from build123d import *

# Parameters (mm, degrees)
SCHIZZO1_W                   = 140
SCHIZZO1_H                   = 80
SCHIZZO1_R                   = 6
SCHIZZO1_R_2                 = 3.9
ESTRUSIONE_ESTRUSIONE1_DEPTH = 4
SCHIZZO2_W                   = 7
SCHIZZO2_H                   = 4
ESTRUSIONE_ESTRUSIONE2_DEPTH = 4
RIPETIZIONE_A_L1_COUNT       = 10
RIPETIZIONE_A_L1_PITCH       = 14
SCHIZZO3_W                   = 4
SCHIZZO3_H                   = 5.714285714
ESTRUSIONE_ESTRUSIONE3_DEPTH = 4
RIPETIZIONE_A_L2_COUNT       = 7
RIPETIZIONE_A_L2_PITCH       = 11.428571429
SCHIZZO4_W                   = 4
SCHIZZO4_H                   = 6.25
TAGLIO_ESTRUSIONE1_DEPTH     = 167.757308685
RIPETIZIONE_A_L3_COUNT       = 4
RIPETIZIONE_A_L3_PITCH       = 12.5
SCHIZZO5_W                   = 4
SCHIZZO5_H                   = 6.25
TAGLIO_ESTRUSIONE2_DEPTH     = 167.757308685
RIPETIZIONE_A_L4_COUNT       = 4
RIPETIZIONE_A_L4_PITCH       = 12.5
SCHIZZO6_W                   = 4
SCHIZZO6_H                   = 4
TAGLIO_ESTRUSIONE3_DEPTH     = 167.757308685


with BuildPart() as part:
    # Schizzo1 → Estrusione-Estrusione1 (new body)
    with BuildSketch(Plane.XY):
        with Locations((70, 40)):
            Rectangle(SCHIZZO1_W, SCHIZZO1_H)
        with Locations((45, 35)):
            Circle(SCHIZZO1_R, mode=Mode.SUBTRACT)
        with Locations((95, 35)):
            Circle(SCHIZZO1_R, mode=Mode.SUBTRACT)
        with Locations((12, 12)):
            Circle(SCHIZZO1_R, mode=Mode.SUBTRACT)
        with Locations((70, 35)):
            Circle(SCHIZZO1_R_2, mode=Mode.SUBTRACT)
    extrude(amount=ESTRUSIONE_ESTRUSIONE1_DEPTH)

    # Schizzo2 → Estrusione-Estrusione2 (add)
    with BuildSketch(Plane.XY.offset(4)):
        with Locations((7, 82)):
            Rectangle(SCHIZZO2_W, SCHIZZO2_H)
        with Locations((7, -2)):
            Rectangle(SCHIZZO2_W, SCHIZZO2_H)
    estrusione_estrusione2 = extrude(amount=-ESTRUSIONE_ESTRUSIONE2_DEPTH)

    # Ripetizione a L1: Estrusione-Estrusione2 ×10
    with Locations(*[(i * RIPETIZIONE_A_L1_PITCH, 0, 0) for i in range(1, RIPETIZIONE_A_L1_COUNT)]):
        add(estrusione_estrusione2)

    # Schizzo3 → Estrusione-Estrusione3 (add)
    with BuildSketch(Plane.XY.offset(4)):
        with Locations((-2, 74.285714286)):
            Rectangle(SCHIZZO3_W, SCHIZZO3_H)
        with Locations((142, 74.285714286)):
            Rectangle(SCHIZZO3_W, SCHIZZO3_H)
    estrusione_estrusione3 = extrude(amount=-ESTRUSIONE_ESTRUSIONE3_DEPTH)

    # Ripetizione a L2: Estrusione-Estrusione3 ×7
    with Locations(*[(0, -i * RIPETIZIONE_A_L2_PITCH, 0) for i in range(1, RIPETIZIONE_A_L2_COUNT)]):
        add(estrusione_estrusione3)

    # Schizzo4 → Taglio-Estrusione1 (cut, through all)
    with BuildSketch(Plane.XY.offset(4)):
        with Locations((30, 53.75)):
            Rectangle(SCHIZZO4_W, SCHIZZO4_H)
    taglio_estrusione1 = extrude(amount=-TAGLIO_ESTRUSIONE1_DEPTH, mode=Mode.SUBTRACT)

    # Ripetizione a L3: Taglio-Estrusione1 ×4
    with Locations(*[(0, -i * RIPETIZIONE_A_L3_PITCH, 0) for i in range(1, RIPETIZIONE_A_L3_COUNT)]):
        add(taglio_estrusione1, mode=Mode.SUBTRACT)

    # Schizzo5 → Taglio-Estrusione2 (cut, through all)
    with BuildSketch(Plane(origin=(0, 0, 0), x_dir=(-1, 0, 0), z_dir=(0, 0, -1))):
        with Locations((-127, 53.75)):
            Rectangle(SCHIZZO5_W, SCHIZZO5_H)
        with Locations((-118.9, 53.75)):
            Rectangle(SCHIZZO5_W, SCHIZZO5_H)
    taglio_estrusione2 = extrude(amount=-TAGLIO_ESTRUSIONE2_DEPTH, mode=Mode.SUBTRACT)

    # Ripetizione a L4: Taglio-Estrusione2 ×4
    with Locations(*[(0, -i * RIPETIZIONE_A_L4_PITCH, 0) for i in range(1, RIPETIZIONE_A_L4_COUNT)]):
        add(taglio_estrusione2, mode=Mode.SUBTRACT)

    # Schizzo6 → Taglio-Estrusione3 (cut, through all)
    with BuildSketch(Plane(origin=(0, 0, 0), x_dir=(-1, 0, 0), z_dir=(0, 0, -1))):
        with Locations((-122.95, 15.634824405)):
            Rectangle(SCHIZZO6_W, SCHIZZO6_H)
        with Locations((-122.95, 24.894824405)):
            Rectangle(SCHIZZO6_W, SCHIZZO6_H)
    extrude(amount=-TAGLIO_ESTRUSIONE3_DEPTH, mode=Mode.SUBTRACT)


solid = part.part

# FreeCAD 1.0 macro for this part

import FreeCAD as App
import Part
import Sketcher

V = App.Vector

doc = App.newDocument("Part")
body = doc.addObject("PartDesign::Body", "Body")

# Sketch on XY plane
sketch1 = doc.addObject("Sketcher::SketchObject", "Sketch")
body.addObject(sketch1)
sketch1.AttachmentSupport = (doc.XY_Plane, [""])
sketch1.MapMode = "FlatFace"
sketch1.addGeometry([
    Part.LineSegment(V(0, 80, 0), V(0, 0, 0)),  # 0
    Part.LineSegment(V(0, 0, 0), V(140, 0, 0)),  # 1
    Part.LineSegment(V(140, 0, 0), V(140, 80, 0)),  # 2
    Part.LineSegment(V(140, 80, 0), V(0, 80, 0)),  # 3
    Part.Circle(V(12, 12, 0), V(0, 0, 1), 6),  # 4
    Part.Circle(V(45, 35, 0), V(0, 0, 1), 6),  # 5
    Part.Circle(V(70, 35, 0), V(0, 0, 1), 3.9),  # 6
    Part.Circle(V(95, 35, 0), V(0, 0, 1), 6),  # 7
], False)
sketch1.addConstraint([
    Sketcher.Constraint("Coincident", 0, 2, 1, 1),
    Sketcher.Constraint("Coincident", 1, 2, 2, 1),
    Sketcher.Constraint("Coincident", 2, 2, 3, 1),
    Sketcher.Constraint("Coincident", 3, 2, 0, 1),
    Sketcher.Constraint("Vertical", 0),
    Sketcher.Constraint("Horizontal", 1),
    Sketcher.Constraint("Vertical", 2),
    Sketcher.Constraint("Horizontal", 3),
    Sketcher.Constraint("Coincident", 0, 2, -1, 1),
    Sketcher.Constraint("Equal", 4, 5),
    Sketcher.Constraint("Equal", 5, 7),
    Sketcher.Constraint("Horizontal", 5, 3, 6, 3),
    Sketcher.Constraint("Horizontal", 6, 3, 7, 3),
    Sketcher.Constraint("Diameter", 4, 12.0),
    Sketcher.Constraint("Diameter", 6, 7.8),
    Sketcher.Constraint("DistanceX", 1, 1, 1, 2, 140.0),
    Sketcher.Constraint("DistanceY", 0, 2, 0, 1, 80.0),
    Sketcher.Constraint("DistanceX", -1, 1, 4, 3, 12.0),
    Sketcher.Constraint("DistanceY", -1, 1, 4, 3, 12.0),
    Sketcher.Constraint("DistanceX", -1, 1, 5, 3, 45.0),
    Sketcher.Constraint("DistanceY", -1, 1, 5, 3, 35.0),
    Sketcher.Constraint("DistanceX", -1, 1, 6, 3, 70.0),
    Sketcher.Constraint("DistanceX", -1, 1, 7, 3, 95.0),
])
pad1 = doc.addObject("PartDesign::Pad", "Pad")
body.addObject(pad1)
pad1.Profile = sketch1
pad1.Length = 4

# Sketch on XY plane
sketch2 = doc.addObject("Sketcher::SketchObject", "Sketch001")
body.addObject(sketch2)
sketch2.AttachmentSupport = (doc.XY_Plane, [""])
sketch2.MapMode = "FlatFace"
sketch2.AttachmentOffset = App.Placement(V(0, 0, 4), App.Rotation())
sketch2.addGeometry([
    Part.LineSegment(V(3.5, 84, 0), V(3.5, 80, 0)),  # 0
    Part.LineSegment(V(3.5, 80, 0), V(10.5, 80, 0)),  # 1
    Part.LineSegment(V(10.5, 80, 0), V(10.5, 84, 0)),  # 2
    Part.LineSegment(V(10.5, 84, 0), V(3.5, 84, 0)),  # 3
    Part.LineSegment(V(3.5, 0, 0), V(3.5, -4, 0)),  # 4
    Part.LineSegment(V(3.5, -4, 0), V(10.5, -4, 0)),  # 5
    Part.LineSegment(V(10.5, -4, 0), V(10.5, 0, 0)),  # 6
    Part.LineSegment(V(10.5, 0, 0), V(3.5, 0, 0)),  # 7
], False)
sketch2.addConstraint([
    Sketcher.Constraint("Coincident", 0, 2, 1, 1),
    Sketcher.Constraint("Coincident", 1, 2, 2, 1),
    Sketcher.Constraint("Coincident", 2, 2, 3, 1),
    Sketcher.Constraint("Coincident", 3, 2, 0, 1),
    Sketcher.Constraint("Coincident", 4, 2, 5, 1),
    Sketcher.Constraint("Coincident", 5, 2, 6, 1),
    Sketcher.Constraint("Coincident", 6, 2, 7, 1),
    Sketcher.Constraint("Coincident", 7, 2, 4, 1),
    Sketcher.Constraint("Vertical", 0),
    Sketcher.Constraint("Horizontal", 1),
    Sketcher.Constraint("Vertical", 2),
    Sketcher.Constraint("Horizontal", 3),
    Sketcher.Constraint("Vertical", 4),
    Sketcher.Constraint("Horizontal", 5),
    Sketcher.Constraint("Vertical", 6),
    Sketcher.Constraint("Horizontal", 7),
    Sketcher.Constraint("PointOnObject", 6, 2, -1),
    Sketcher.Constraint("Vertical", 3, 2, 4, 2),
    Sketcher.Constraint("Vertical", 2, 2, 5, 2),
    Sketcher.Constraint("Equal", 2, 4),
    Sketcher.Constraint("DistanceX", 1, 1, 1, 2, 7.0),
    Sketcher.Constraint("DistanceY", 0, 2, 0, 1, 4.0),
    Sketcher.Constraint("DistanceY", -1, 1, 0, 2, 80.0),
    Sketcher.Constraint("DistanceX", -1, 1, 0, 2, 3.5),
])
pad2 = doc.addObject("PartDesign::Pad", "Pad001")
body.addObject(pad2)
pad2.Profile = sketch2
pad2.Length = 4
pad2.Reversed = True
doc.recompute()

linearpattern = doc.addObject("PartDesign::LinearPattern", "LinearPattern")
body.addObject(linearpattern)
linearpattern.Originals = [pad2]
linearpattern.Direction = (doc.X_Axis, [""])
linearpattern.Mode = "offset"
linearpattern.Offset = 14
linearpattern.Occurrences = 10
body.Tip = linearpattern

# Sketch on XY plane
sketch3 = doc.addObject("Sketcher::SketchObject", "Sketch002")
body.addObject(sketch3)
sketch3.AttachmentSupport = (doc.XY_Plane, [""])
sketch3.MapMode = "FlatFace"
sketch3.AttachmentOffset = App.Placement(V(0, 0, 4), App.Rotation())
sketch3.addGeometry([
    Part.LineSegment(V(-4, 77.1, 0), V(-4, 71.4, 0)),  # 0
    Part.LineSegment(V(-4, 71.4, 0), V(0, 71.4, 0)),  # 1
    Part.LineSegment(V(0, 71.4, 0), V(0, 77.1, 0)),  # 2
    Part.LineSegment(V(0, 77.1, 0), V(-4, 77.1, 0)),  # 3
    Part.LineSegment(V(140, 77.1, 0), V(140, 71.4, 0)),  # 4
    Part.LineSegment(V(140, 71.4, 0), V(144, 71.4, 0)),  # 5
    Part.LineSegment(V(144, 71.4, 0), V(144, 77.1, 0)),  # 6
    Part.LineSegment(V(144, 77.1, 0), V(140, 77.1, 0)),  # 7
], False)
sketch3.addConstraint([
    Sketcher.Constraint("Coincident", 0, 2, 1, 1),
    Sketcher.Constraint("Coincident", 1, 2, 2, 1),
    Sketcher.Constraint("Coincident", 2, 2, 3, 1),
    Sketcher.Constraint("Coincident", 3, 2, 0, 1),
    Sketcher.Constraint("Coincident", 4, 2, 5, 1),
    Sketcher.Constraint("Coincident", 5, 2, 6, 1),
    Sketcher.Constraint("Coincident", 6, 2, 7, 1),
    Sketcher.Constraint("Coincident", 7, 2, 4, 1),
    Sketcher.Constraint("Vertical", 0),
    Sketcher.Constraint("Horizontal", 1),
    Sketcher.Constraint("Vertical", 2),
    Sketcher.Constraint("Horizontal", 3),
    Sketcher.Constraint("Vertical", 4),
    Sketcher.Constraint("Horizontal", 5),
    Sketcher.Constraint("Vertical", 6),
    Sketcher.Constraint("Horizontal", 7),
    Sketcher.Constraint("PointOnObject", 1, 2, -2),
    Sketcher.Constraint("Horizontal", 1, 2, 4, 2),
    Sketcher.Constraint("Horizontal", 3, 2, 6, 2),
    Sketcher.Constraint("Equal", 3, 5),
    Sketcher.Constraint("DistanceX", 1, 1, 1, 2, 4.0),
    Sketcher.Constraint("DistanceX", -1, 1, 4, 2, 140.0),
    Sketcher.Constraint("DistanceY", 0, 2, 0, 1, 5.714286),
    Sketcher.Constraint("DistanceY", -1, 1, 0, 2, 71.428571),
])
pad3 = doc.addObject("PartDesign::Pad", "Pad002")
body.addObject(pad3)
pad3.Profile = sketch3
pad3.Length = 4
pad3.Reversed = True
doc.recompute()

linearpattern2 = doc.addObject("PartDesign::LinearPattern", "LinearPattern001")
body.addObject(linearpattern2)
linearpattern2.Originals = [pad3]
linearpattern2.Direction = (doc.Y_Axis, [""])
linearpattern2.Mode = "offset"
linearpattern2.Offset = 11.428571
linearpattern2.Occurrences = 7
linearpattern2.Reversed = True
body.Tip = linearpattern2

# Sketch on XY plane
sketch4 = doc.addObject("Sketcher::SketchObject", "Sketch003")
body.addObject(sketch4)
sketch4.AttachmentSupport = (doc.XY_Plane, [""])
sketch4.MapMode = "FlatFace"
sketch4.AttachmentOffset = App.Placement(V(0, 0, 4), App.Rotation())
sketch4.addGeometry([
    Part.LineSegment(V(28, 56.9, 0), V(28, 50.6, 0)),
    Part.LineSegment(V(28, 50.6, 0), V(32, 50.6, 0)),
    Part.LineSegment(V(32, 50.6, 0), V(32, 56.9, 0)),
    Part.LineSegment(V(32, 56.9, 0), V(28, 56.9, 0)),
], False)
sketch4.addConstraint([
    Sketcher.Constraint("Coincident", 0, 2, 1, 1),
    Sketcher.Constraint("Coincident", 1, 2, 2, 1),
    Sketcher.Constraint("Coincident", 2, 2, 3, 1),
    Sketcher.Constraint("Coincident", 3, 2, 0, 1),
    Sketcher.Constraint("Vertical", 0),
    Sketcher.Constraint("Horizontal", 1),
    Sketcher.Constraint("Vertical", 2),
    Sketcher.Constraint("Horizontal", 3),
    Sketcher.Constraint("DistanceX", 1, 1, 1, 2, 4.0),
    Sketcher.Constraint("DistanceX", -1, 1, 0, 2, 28.0),
    Sketcher.Constraint("DistanceY", 0, 2, 0, 1, 6.25),
    Sketcher.Constraint("DistanceY", -1, 1, 0, 2, 50.625),
])
pocket1 = doc.addObject("PartDesign::Pocket", "Pocket")
body.addObject(pocket1)
pocket1.Profile = sketch4
pocket1.Type = "ThroughAll"
doc.recompute()

linearpattern3 = doc.addObject("PartDesign::LinearPattern", "LinearPattern002")
body.addObject(linearpattern3)
linearpattern3.Originals = [pocket1]
linearpattern3.Direction = (doc.Y_Axis, [""])
linearpattern3.Mode = "offset"
linearpattern3.Offset = 12.5
linearpattern3.Occurrences = 4
linearpattern3.Reversed = True
body.Tip = linearpattern3

# Sketch on XY plane
sketch5 = doc.addObject("Sketcher::SketchObject", "Sketch004")
body.addObject(sketch5)
sketch5.AttachmentSupport = (doc.XY_Plane, [""])
sketch5.MapMode = "FlatFace"
sketch5.addGeometry([
    Part.LineSegment(V(129, 56.9, 0), V(129, 50.6, 0)),  # 0
    Part.LineSegment(V(129, 50.6, 0), V(125, 50.6, 0)),  # 1
    Part.LineSegment(V(125, 50.6, 0), V(125, 56.9, 0)),  # 2
    Part.LineSegment(V(125, 56.9, 0), V(129, 56.9, 0)),  # 3
    Part.LineSegment(V(120.9, 56.9, 0), V(120.9, 50.6, 0)),  # 4
    Part.LineSegment(V(120.9, 50.6, 0), V(116.9, 50.6, 0)),  # 5
    Part.LineSegment(V(116.9, 50.6, 0), V(116.9, 56.9, 0)),  # 6
    Part.LineSegment(V(116.9, 56.9, 0), V(120.9, 56.9, 0)),  # 7
], False)
sketch5.addConstraint([
    Sketcher.Constraint("Coincident", 0, 2, 1, 1),
    Sketcher.Constraint("Coincident", 1, 2, 2, 1),
    Sketcher.Constraint("Coincident", 2, 2, 3, 1),
    Sketcher.Constraint("Coincident", 3, 2, 0, 1),
    Sketcher.Constraint("Coincident", 4, 2, 5, 1),
    Sketcher.Constraint("Coincident", 5, 2, 6, 1),
    Sketcher.Constraint("Coincident", 6, 2, 7, 1),
    Sketcher.Constraint("Coincident", 7, 2, 4, 1),
    Sketcher.Constraint("Vertical", 0),
    Sketcher.Constraint("Horizontal", 1),
    Sketcher.Constraint("Vertical", 2),
    Sketcher.Constraint("Horizontal", 3),
    Sketcher.Constraint("Vertical", 4),
    Sketcher.Constraint("Horizontal", 5),
    Sketcher.Constraint("Vertical", 6),
    Sketcher.Constraint("Horizontal", 7),
    Sketcher.Constraint("Horizontal", 1, 2, 4, 2),
    Sketcher.Constraint("Horizontal", 3, 2, 6, 2),
    Sketcher.Constraint("Equal", 3, 5),
    Sketcher.Constraint("DistanceX", 1, 2, 1, 1, 4.0),
    Sketcher.Constraint("DistanceX", -1, 1, 0, 2, 129.0),
    Sketcher.Constraint("DistanceY", 0, 2, 0, 1, 6.25),
    Sketcher.Constraint("DistanceX", -1, 1, 4, 2, 120.9),
    Sketcher.Constraint("DistanceY", -1, 1, 0, 2, 50.625),
])
pocket2 = doc.addObject("PartDesign::Pocket", "Pocket001")
body.addObject(pocket2)
pocket2.Profile = sketch5
pocket2.Type = "ThroughAll"
pocket2.Reversed = True
doc.recompute()

linearpattern4 = doc.addObject("PartDesign::LinearPattern", "LinearPattern003")
body.addObject(linearpattern4)
linearpattern4.Originals = [pocket2]
linearpattern4.Direction = (doc.Y_Axis, [""])
linearpattern4.Mode = "offset"
linearpattern4.Offset = 12.5
linearpattern4.Occurrences = 4
linearpattern4.Reversed = True
body.Tip = linearpattern4

# Sketch on XY plane
sketch6 = doc.addObject("Sketcher::SketchObject", "Sketch005")
body.addObject(sketch6)
sketch6.AttachmentSupport = (doc.XY_Plane, [""])
sketch6.MapMode = "FlatFace"
sketch6.addGeometry([
    Part.LineSegment(V(125, 17.6, 0), V(125, 13.6, 0)),  # 0
    Part.LineSegment(V(125, 13.6, 0), V(121, 13.6, 0)),  # 1
    Part.LineSegment(V(121, 13.6, 0), V(121, 17.6, 0)),  # 2
    Part.LineSegment(V(121, 17.6, 0), V(125, 17.6, 0)),  # 3
    Part.LineSegment(V(125, 26.9, 0), V(125, 22.9, 0)),  # 4
    Part.LineSegment(V(125, 22.9, 0), V(121, 22.9, 0)),  # 5
    Part.LineSegment(V(121, 22.9, 0), V(121, 26.9, 0)),  # 6
    Part.LineSegment(V(121, 26.9, 0), V(125, 26.9, 0)),  # 7
], False)
sketch6.addConstraint([
    Sketcher.Constraint("Coincident", 0, 2, 1, 1),
    Sketcher.Constraint("Coincident", 1, 2, 2, 1),
    Sketcher.Constraint("Coincident", 2, 2, 3, 1),
    Sketcher.Constraint("Coincident", 3, 2, 0, 1),
    Sketcher.Constraint("Coincident", 4, 2, 5, 1),
    Sketcher.Constraint("Coincident", 5, 2, 6, 1),
    Sketcher.Constraint("Coincident", 6, 2, 7, 1),
    Sketcher.Constraint("Coincident", 7, 2, 4, 1),
    Sketcher.Constraint("Vertical", 0),
    Sketcher.Constraint("Horizontal", 1),
    Sketcher.Constraint("Vertical", 2),
    Sketcher.Constraint("Horizontal", 3),
    Sketcher.Constraint("Vertical", 4),
    Sketcher.Constraint("Horizontal", 5),
    Sketcher.Constraint("Vertical", 6),
    Sketcher.Constraint("Horizontal", 7),
    Sketcher.Constraint("Vertical", 3, 2, 4, 2),
    Sketcher.Constraint("Vertical", 2, 2, 5, 2),
    Sketcher.Constraint("Equal", 7, 0),
    Sketcher.Constraint("Equal", 2, 4),
    Sketcher.Constraint("DistanceX", 1, 2, 1, 1, 4.0),
    Sketcher.Constraint("DistanceX", -1, 1, 0, 2, 124.95),
    Sketcher.Constraint("DistanceY", 3, 2, 4, 2, 5.26),
    Sketcher.Constraint("DistanceY", -1, 1, 0, 2, 13.634824),
])
pocket3 = doc.addObject("PartDesign::Pocket", "Pocket002")
body.addObject(pocket3)
pocket3.Profile = sketch6
pocket3.Type = "ThroughAll"
pocket3.Reversed = True

doc.recompute()
